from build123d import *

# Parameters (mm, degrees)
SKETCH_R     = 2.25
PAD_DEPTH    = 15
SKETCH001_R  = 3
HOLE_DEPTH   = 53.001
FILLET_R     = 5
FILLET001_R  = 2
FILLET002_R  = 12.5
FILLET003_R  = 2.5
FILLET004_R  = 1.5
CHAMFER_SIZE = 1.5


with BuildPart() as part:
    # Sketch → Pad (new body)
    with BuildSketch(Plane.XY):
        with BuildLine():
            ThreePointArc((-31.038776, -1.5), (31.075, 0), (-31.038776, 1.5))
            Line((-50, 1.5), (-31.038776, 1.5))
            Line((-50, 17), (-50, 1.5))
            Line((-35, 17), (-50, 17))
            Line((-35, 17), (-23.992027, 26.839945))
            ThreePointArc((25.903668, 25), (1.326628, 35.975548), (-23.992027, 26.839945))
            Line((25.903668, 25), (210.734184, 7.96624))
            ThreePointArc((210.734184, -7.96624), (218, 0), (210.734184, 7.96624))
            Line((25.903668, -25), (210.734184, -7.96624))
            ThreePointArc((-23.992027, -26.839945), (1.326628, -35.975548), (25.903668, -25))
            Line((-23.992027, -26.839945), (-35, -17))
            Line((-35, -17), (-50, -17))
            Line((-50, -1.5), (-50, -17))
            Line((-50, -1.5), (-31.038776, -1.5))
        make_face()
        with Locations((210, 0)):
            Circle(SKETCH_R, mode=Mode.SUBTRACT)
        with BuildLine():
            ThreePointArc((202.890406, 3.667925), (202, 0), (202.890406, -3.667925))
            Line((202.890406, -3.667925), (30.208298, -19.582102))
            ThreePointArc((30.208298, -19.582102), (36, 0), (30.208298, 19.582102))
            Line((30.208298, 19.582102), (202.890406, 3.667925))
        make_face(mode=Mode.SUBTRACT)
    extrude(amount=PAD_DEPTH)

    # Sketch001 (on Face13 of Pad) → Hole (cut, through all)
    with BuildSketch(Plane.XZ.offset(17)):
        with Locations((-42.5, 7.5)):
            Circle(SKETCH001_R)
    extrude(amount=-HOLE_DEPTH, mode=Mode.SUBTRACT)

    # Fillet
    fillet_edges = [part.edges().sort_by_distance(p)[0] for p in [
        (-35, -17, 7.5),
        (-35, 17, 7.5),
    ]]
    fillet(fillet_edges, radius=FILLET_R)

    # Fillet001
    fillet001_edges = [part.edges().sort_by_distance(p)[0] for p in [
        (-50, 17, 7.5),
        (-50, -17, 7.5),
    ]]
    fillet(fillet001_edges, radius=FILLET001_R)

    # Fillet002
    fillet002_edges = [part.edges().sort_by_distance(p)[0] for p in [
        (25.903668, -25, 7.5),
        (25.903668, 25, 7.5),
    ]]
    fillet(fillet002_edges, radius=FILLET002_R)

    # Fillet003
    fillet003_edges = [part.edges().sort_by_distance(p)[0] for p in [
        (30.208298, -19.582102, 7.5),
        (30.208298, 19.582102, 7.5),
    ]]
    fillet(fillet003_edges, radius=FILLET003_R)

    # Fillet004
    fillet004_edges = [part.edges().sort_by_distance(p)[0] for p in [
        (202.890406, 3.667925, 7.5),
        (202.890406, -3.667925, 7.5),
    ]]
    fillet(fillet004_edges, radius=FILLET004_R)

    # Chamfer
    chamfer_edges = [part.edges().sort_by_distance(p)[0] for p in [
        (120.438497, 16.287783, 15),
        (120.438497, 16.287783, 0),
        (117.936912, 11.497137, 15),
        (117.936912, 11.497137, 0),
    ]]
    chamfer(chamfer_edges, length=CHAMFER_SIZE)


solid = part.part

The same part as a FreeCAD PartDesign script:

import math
import FreeCAD as App
import Part
import Sketcher

V = App.Vector


def edges_at(feature, points):
    """Names of the edges that pass closest to the given points."""
    edges = feature.Shape.Edges
    near = lambda p: min(range(len(edges)), key=lambda i: edges[i].distToShape(Part.Vertex(*p))[0])
    return sorted({f"Edge{near(p) + 1}" for p in points})

doc = App.newDocument("Part")
params = doc.addObject("Spreadsheet::Sheet", "Params")
for row, (alias, value) in enumerate([
    ("sketch1_radius", "36.000001 mm"),
    ("sketch1_radius2", "8 mm"),
    ("sketch1_diameter", "4.5 mm"),
    ("sketch1_width", "15 mm"),
    ("sketch1_height", "15.5 mm"),
    ("pad1_length", "15 mm"),
    ("sketch2_diameter", "6 mm"),
    ("fillet_radius", "5 mm"),
    ("fillet2_radius", "2 mm"),
    ("fillet3_radius", "12.5 mm"),
    ("fillet4_radius", "2.5 mm"),
    ("fillet5_radius", "1.5 mm"),
    ("chamfer_size", "1.5 mm"),
], start=1):
    params.set(f"A{row}", alias)
    params.set(f"B{row}", "=" + value)
    params.setAlias(f"B{row}", alias)

body = doc.addObject("PartDesign::Body", "Body")

# Sketch on XY plane
sketch1 = body.newObject("Sketcher::SketchObject", "Sketch")
sketch1.AttachmentSupport = (doc.getObject("XY_Plane"), [""])
sketch1.MapMode = "FlatFace"
sketch1.addGeometry(Part.ArcOfCircle(Part.Circle(V(0, 0, 0), V(0, 0, 1), 31.1), math.radians(-177), math.radians(177)), False)
sketch1.addGeometry(Part.LineSegment(V(-31, -1.5, 0), V(-50, -1.5, 0)), False)
sketch1.addGeometry(Part.LineSegment(V(-50, -1.5, 0), V(-50, -17, 0)), False)
sketch1.addGeometry(Part.LineSegment(V(-50, -17, 0), V(-35, -17, 0)), False)
sketch1.addGeometry(Part.LineSegment(V(-35, -17, 0), V(-24, -26.8, 0)), False)
sketch1.addGeometry(Part.ArcOfCircle(Part.Circle(V(0, 0, 0), V(0, 0, 1), 36), math.radians(-132), math.radians(-44)), False)
sketch1.addGeometry(Part.LineSegment(V(25.9, -25, 0), V(210.7, -8, 0)), False)
sketch1.addGeometry(Part.ArcOfCircle(Part.Circle(V(210, 0, 0), V(0, 0, 1), 8), math.radians(-85), math.radians(85)), False)
sketch1.addGeometry(Part.LineSegment(V(210.7, 8, 0), V(25.9, 25, 0)), False)
sketch1.addGeometry(Part.ArcOfCircle(Part.Circle(V(0, 0, 0), V(0, 0, 1), 36), math.radians(44), math.radians(132)), False)
sketch1.addGeometry(Part.LineSegment(V(-24, 26.8, 0), V(-35, 17, 0)), False)
sketch1.addGeometry(Part.LineSegment(V(-35, 17, 0), V(-50, 17, 0)), False)
sketch1.addGeometry(Part.LineSegment(V(-50, 17, 0), V(-50, 1.5, 0)), False)
sketch1.addGeometry(Part.LineSegment(V(-50, 1.5, 0), V(-31, 1.5, 0)), False)
sketch1.addGeometry(Part.Circle(V(210, 0, 0), V(0, 0, 1), 2.2), False)
sketch1.addGeometry(Part.ArcOfCircle(Part.Circle(V(210, 0, 0), V(0, 0, 1), 8), math.radians(153), math.radians(207)), False)
sketch1.addGeometry(Part.LineSegment(V(202.9, -3.7, 0), V(30.2, -19.6, 0)), False)
sketch1.addGeometry(Part.ArcOfCircle(Part.Circle(V(0, 0, 0), V(0, 0, 1), 36), math.radians(-33), math.radians(33)), False)
sketch1.addGeometry(Part.LineSegment(V(30.2, 19.6, 0), V(202.9, 3.7, 0)), False)
sketch1.addConstraint(Sketcher.Constraint("Coincident", 0, 1, 1, 1))
sketch1.addConstraint(Sketcher.Constraint("Coincident", 1, 2, 2, 1))
sketch1.addConstraint(Sketcher.Constraint("Coincident", 2, 2, 3, 1))
sketch1.addConstraint(Sketcher.Constraint("Coincident", 3, 2, 4, 1))
sketch1.addConstraint(Sketcher.Constraint("Tangent", 4, 2, 5, 1))
sketch1.addConstraint(Sketcher.Constraint("Coincident", 5, 2, 6, 1))
sketch1.addConstraint(Sketcher.Constraint("Coincident", 6, 2, 7, 1))
sketch1.addConstraint(Sketcher.Constraint("Coincident", 7, 2, 8, 1))
sketch1.addConstraint(Sketcher.Constraint("Coincident", 8, 2, 9, 1))
sketch1.addConstraint(Sketcher.Constraint("Tangent", 9, 2, 10, 1))
sketch1.addConstraint(Sketcher.Constraint("Coincident", 10, 2, 11, 1))
sketch1.addConstraint(Sketcher.Constraint("Coincident", 11, 2, 12, 1))
sketch1.addConstraint(Sketcher.Constraint("Coincident", 12, 2, 13, 1))
sketch1.addConstraint(Sketcher.Constraint("Coincident", 13, 2, 0, 2))
sketch1.addConstraint(Sketcher.Constraint("Coincident", 15, 2, 16, 1))
sketch1.addConstraint(Sketcher.Constraint("Coincident", 16, 2, 17, 1))
sketch1.addConstraint(Sketcher.Constraint("Coincident", 17, 2, 18, 1))
sketch1.addConstraint(Sketcher.Constraint("Coincident", 18, 2, 15, 1))
sketch1.addConstraint(Sketcher.Constraint("Horizontal", 1))
sketch1.addConstraint(Sketcher.Constraint("Vertical", 2))
sketch1.addConstraint(Sketcher.Constraint("Horizontal", 3))
sketch1.addConstraint(Sketcher.Constraint("Horizontal", 11))
sketch1.addConstraint(Sketcher.Constraint("Vertical", 12))
sketch1.addConstraint(Sketcher.Constraint("Horizontal", 13))
sketch1.addConstraint(Sketcher.Constraint("Coincident", 0, 3, -1, 1))
sketch1.addConstraint(Sketcher.Constraint("Coincident", 5, 3, -1, 1))
sketch1.addConstraint(Sketcher.Constraint("Coincident", 9, 3, -1, 1))
sketch1.addConstraint(Sketcher.Constraint("Coincident", 17, 3, -1, 1))
sketch1.addConstraint(Sketcher.Constraint("Coincident", 14, 3, 7, 3))
sketch1.addConstraint(Sketcher.Constraint("Coincident", 15, 3, 7, 3))
sketch1.addConstraint(Sketcher.Constraint("Equal", 5, 9))
sketch1.addConstraint(Sketcher.Constraint("Equal", 7, 15))
sketch1.addConstraint(Sketcher.Constraint("Equal", 9, 17))
sketch1.addConstraint(Sketcher.Constraint("Symmetric", 6, 2, 7, 2, -1))
sketch1.addConstraint(Sketcher.Constraint("Symmetric", 3, 2, 10, 2, -1))
sketch1.addConstraint(Sketcher.Constraint("Symmetric", 1, 2, 12, 2, -1))
sketch1.addConstraint(Sketcher.Constraint("Parallel", 6, 16))
sketch1.addConstraint(Sketcher.Constraint("Parallel", 8, 18))
sketch1.addConstraint(Sketcher.Constraint("Vertical", 5, 2, 8, 2))
sketch1.addConstraint(Sketcher.Constraint("Vertical", 16, 2, 17, 2))
sketch1.addConstraint(Sketcher.Constraint("Radius", 5, 36.000001))
sketch1.addConstraint(Sketcher.Constraint("Radius", 7, 8.0))
sketch1.addConstraint(Sketcher.Constraint("Diameter", 14, 4.5))
sketch1.addConstraint(Sketcher.Constraint("DistanceX", 3, 1, 3, 2, 15.0))
sketch1.addConstraint(Sketcher.Constraint("DistanceY", 2, 2, 2, 1, 15.5))
sketch1.addConstraint(Sketcher.Constraint("DistanceX", -1, 1, 7, 3, 210.0))
sketch1.addConstraint(Sketcher.Constraint("DistanceX", 1, 2, -1, 1, 50.0))
sketch1.addConstraint(Sketcher.Constraint("DistanceY", 2, 2, -1, 1, 17.0))
sketch1.addConstraint(Sketcher.Constraint("DistanceY", 5, 2, -1, 1, 25.0))
sketch1.addConstraint(Sketcher.Constraint("Radius", 0, 31.075))
sketch1.addConstraint(Sketcher.Constraint("DistanceY", 16, 2, -1, 1, 19.582102))
sketch1.addConstraint(Sketcher.Constraint("Distance", 6, 185.613762))
sketch1.setExpression("Constraints[40]", "Params.sketch1_radius")
sketch1.setExpression("Constraints[41]", "Params.sketch1_radius2")
sketch1.setExpression("Constraints[42]", "Params.sketch1_diameter")
sketch1.setExpression("Constraints[43]", "Params.sketch1_width")
sketch1.setExpression("Constraints[44]", "Params.sketch1_height")
pad1 = body.newObject("PartDesign::Pad", "Pad")
pad1.Profile = sketch1
pad1.setExpression("Length", "Params.pad1_length")

# Sketch on XZ plane
sketch2 = body.newObject("Sketcher::SketchObject", "Sketch001")
sketch2.AttachmentSupport = (doc.getObject("XZ_Plane"), [""])
sketch2.MapMode = "FlatFace"
sketch2.AttachmentOffset = App.Placement(V(0, 0, 17), App.Rotation())
sketch2.addGeometry(Part.Circle(V(-42.5, 7.5, 0), V(0, 0, 1), 3), False)
sketch2.addConstraint(Sketcher.Constraint("Diameter", 0, 6.0))
sketch2.addConstraint(Sketcher.Constraint("DistanceX", 0, 3, -1, 1, 42.5))
sketch2.addConstraint(Sketcher.Constraint("DistanceY", -1, 1, 0, 3, 7.5))
sketch2.setExpression("Constraints[0]", "Params.sketch2_diameter")
pocket1 = body.newObject("PartDesign::Pocket", "Pocket")
pocket1.Profile = sketch2
pocket1.Type = "ThroughAll"
doc.recompute()

fillet = body.newObject("PartDesign::Fillet", "Fillet")
fillet.Base = (pocket1, edges_at(pocket1, [(-35, -17, 7.5), (-35, 17, 7.5)]))
fillet.setExpression("Radius", "Params.fillet_radius")
doc.recompute()

fillet2 = body.newObject("PartDesign::Fillet", "Fillet001")
fillet2.Base = (fillet, edges_at(fillet, [(-50, 17, 7.5), (-50, -17, 7.5)]))
fillet2.setExpression("Radius", "Params.fillet2_radius")
doc.recompute()

fillet3 = body.newObject("PartDesign::Fillet", "Fillet002")
fillet3.Base = (fillet2, edges_at(fillet2, [(25.904, -25, 7.5), (25.904, 25, 7.5)]))
fillet3.setExpression("Radius", "Params.fillet3_radius")
doc.recompute()

fillet4 = body.newObject("PartDesign::Fillet", "Fillet003")
fillet4.Base = (fillet3, edges_at(fillet3, [(30.208, -19.582, 7.5), (30.208, 19.582, 7.5)]))
fillet4.setExpression("Radius", "Params.fillet4_radius")
doc.recompute()

fillet5 = body.newObject("PartDesign::Fillet", "Fillet004")
fillet5.Base = (fillet4, edges_at(fillet4, [(202.89, 3.668, 7.5), (202.89, -3.668, 7.5)]))
fillet5.setExpression("Radius", "Params.fillet5_radius")
doc.recompute()

chamfer = body.newObject("PartDesign::Chamfer", "Chamfer")
chamfer.Base = (fillet5, edges_at(fillet5, [
    (120.438, 16.288, 15),
    (120.438, 16.288, 0),
    (117.937, 11.497, 15),
    (117.937, 11.497, 0),
]))
chamfer.setExpression("Size", "Params.chamfer_size")

doc.recompute()
